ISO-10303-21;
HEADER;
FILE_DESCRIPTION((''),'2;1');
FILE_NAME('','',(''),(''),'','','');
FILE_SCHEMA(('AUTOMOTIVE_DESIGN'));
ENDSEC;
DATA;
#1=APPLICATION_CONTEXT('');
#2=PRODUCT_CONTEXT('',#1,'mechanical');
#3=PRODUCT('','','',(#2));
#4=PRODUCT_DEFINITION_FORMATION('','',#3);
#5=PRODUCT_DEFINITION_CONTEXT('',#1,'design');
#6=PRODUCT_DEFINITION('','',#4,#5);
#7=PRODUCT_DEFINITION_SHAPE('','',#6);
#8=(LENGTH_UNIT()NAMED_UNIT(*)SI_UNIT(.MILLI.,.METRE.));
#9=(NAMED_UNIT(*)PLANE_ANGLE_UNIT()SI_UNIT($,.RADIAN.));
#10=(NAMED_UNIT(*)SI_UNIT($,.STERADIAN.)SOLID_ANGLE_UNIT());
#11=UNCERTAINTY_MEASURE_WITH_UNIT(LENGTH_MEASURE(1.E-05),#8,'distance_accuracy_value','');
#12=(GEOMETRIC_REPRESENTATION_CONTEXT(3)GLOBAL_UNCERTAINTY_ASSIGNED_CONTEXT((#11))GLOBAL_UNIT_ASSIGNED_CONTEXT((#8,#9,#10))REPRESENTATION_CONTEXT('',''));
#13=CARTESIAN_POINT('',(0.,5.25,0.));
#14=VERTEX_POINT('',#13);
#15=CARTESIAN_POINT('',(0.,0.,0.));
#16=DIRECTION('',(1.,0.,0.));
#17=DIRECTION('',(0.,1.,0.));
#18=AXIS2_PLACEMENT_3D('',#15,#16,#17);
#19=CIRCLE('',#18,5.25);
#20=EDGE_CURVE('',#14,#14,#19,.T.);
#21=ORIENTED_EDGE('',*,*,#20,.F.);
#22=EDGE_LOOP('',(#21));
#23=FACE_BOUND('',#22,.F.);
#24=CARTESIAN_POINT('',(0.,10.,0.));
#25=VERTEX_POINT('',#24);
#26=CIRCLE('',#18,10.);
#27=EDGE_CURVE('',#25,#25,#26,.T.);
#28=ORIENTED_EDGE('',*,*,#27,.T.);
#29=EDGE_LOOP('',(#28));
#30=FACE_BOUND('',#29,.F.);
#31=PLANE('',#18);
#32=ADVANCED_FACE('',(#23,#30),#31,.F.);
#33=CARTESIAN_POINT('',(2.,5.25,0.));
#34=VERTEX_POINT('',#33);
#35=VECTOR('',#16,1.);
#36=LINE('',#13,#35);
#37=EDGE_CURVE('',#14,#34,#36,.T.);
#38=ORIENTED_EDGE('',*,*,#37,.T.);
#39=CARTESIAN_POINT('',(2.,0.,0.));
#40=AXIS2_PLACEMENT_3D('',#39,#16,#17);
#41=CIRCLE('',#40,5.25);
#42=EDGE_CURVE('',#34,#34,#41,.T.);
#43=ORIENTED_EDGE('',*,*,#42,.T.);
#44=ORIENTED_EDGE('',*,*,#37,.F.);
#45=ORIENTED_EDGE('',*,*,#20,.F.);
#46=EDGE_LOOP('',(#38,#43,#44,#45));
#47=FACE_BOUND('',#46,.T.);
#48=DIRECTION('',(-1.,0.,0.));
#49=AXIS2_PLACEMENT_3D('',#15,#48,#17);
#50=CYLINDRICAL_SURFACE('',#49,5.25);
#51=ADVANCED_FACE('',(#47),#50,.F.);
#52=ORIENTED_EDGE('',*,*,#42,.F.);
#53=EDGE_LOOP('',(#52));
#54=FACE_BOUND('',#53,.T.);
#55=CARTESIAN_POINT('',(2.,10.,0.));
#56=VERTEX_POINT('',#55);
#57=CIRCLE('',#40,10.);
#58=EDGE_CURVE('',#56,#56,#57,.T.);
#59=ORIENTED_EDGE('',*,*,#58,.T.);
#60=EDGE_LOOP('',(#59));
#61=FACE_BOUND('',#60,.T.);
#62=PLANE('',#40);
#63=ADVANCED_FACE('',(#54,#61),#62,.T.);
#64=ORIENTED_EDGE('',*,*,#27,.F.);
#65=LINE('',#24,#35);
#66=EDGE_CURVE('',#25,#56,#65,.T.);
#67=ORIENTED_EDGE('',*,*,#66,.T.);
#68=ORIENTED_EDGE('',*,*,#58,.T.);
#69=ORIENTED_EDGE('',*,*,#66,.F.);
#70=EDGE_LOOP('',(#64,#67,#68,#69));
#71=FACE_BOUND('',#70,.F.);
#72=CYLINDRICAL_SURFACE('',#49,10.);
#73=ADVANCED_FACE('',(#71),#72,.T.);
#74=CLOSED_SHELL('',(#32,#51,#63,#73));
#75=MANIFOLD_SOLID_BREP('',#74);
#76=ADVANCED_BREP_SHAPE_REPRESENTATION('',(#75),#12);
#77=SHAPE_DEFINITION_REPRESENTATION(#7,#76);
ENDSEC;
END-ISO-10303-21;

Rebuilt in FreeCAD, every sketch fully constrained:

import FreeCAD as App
import Part
import Sketcher

V = App.Vector

doc = App.newDocument("Part")
body = doc.addObject("PartDesign::Body", "Body")

sketch1 = body.newObject("Sketcher::SketchObject", "Sketch")
sketch1.AttachmentSupport = (doc.getObject("YZ_Plane"), [""])
sketch1.MapMode = "FlatFace"
sketch1.addGeometry([
    Part.Circle(V(0, 0, 0), V(0, 0, 1), 10),
    Part.Circle(V(0, 0, 0), V(0, 0, 1), 5),
], False)
sketch1.addConstraint([
    Sketcher.Constraint("Coincident", 0, 3, -1, 1),
    Sketcher.Constraint("Coincident", 1, 3, -1, 1),
    Sketcher.Constraint("Diameter", 0, 20.0),
    Sketcher.Constraint("Diameter", 1, 10.5),
])
pad1 = body.newObject("PartDesign::Pad", "Pad")
pad1.Profile = sketch1
pad1.Length = 2

doc.recompute()
